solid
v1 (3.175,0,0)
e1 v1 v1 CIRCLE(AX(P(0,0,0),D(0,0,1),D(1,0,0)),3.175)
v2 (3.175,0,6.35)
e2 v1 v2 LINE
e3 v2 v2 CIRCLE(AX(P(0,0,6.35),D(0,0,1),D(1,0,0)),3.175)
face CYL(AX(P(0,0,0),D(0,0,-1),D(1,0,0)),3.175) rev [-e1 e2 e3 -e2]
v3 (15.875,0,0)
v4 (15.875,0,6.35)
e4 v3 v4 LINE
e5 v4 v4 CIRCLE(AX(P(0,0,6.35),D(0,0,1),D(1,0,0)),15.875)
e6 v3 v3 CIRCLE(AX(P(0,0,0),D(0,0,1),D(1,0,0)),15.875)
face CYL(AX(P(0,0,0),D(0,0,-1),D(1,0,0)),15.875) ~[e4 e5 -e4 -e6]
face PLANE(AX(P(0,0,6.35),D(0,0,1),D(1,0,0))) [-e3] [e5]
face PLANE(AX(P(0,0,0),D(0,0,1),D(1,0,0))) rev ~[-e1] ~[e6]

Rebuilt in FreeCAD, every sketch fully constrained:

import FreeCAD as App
import Part
import Sketcher

V = App.Vector
Q = App.Units.Quantity

doc = App.newDocument("Part")
body = doc.addObject("PartDesign::Body", "Body")

# Sketch on XY plane
sketch1 = body.newObject("Sketcher::SketchObject", "Sketch")
sketch1.AttachmentSupport = (doc.getObject("XY_Plane"), [""])
sketch1.MapMode = "FlatFace"
sketch1.addGeometry([
    Part.Circle(V(0, 0, 0), V(0, 0, 1), 15.9),
    Part.Circle(V(0, 0, 0), V(0, 0, 1), 3.2),
], False)
sketch1.addConstraint([
    Sketcher.Constraint("Coincident", 0, 3, -1, 1),
    Sketcher.Constraint("Coincident", 1, 3, -1, 1),
    Sketcher.Constraint("Diameter", 0, Q("1.25 in")),
    Sketcher.Constraint("Diameter", 1, Q("0.25 in")),
])
pad1 = body.newObject("PartDesign::Pad", "Pad")
pad1.Profile = sketch1
pad1.Length = Q("0.25 in")

doc.recompute()
